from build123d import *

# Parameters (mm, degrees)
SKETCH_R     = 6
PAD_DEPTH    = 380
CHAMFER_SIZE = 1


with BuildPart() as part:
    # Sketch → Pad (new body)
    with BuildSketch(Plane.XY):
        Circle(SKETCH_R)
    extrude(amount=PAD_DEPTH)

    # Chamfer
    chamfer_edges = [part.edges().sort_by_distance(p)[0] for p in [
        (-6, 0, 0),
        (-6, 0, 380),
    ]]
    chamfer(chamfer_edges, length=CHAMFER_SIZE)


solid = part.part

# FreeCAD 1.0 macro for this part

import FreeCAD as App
import Part
import Sketcher

V = App.Vector
Q = App.Units.Quantity


def edges_at(feature, points):
    """Names of the edges that pass closest to the given points."""
    edges = feature.Shape.Edges
    near = lambda p: min(range(len(edges)), key=lambda i: edges[i].distToShape(Part.Vertex(*p))[0])
    return sorted({f"Edge{near(p) + 1}" for p in points})

doc = App.newDocument("Part")
body = doc.addObject("PartDesign::Body", "Body")

# Sketch on XY plane
sketch1 = doc.addObject("Sketcher::SketchObject", "Sketch")
body.addObject(sketch1)
sketch1.AttachmentSupport = (doc.XY_Plane, [""])
sketch1.MapMode = "FlatFace"
sketch1.addGeometry(Part.Circle(V(0, 0, 0), V(0, 0, 1), 6), False)
sketch1.addConstraint([
    Sketcher.Constraint("Coincident", 0, 3, -1, 1),
    Sketcher.Constraint("Diameter", 0, Q("12 mm")),
])
pad1 = doc.addObject("PartDesign::Pad", "Pad")
body.addObject(pad1)
pad1.Profile = sketch1
pad1.Length = 380
doc.recompute()

chamfer = doc.addObject("PartDesign::Chamfer", "Chamfer")
body.addObject(chamfer)
chamfer.Base = (pad1, edges_at(pad1, [(-6, 0, 0), (-6, 0, 380)]))
chamfer.Size = 1

doc.recompute()
